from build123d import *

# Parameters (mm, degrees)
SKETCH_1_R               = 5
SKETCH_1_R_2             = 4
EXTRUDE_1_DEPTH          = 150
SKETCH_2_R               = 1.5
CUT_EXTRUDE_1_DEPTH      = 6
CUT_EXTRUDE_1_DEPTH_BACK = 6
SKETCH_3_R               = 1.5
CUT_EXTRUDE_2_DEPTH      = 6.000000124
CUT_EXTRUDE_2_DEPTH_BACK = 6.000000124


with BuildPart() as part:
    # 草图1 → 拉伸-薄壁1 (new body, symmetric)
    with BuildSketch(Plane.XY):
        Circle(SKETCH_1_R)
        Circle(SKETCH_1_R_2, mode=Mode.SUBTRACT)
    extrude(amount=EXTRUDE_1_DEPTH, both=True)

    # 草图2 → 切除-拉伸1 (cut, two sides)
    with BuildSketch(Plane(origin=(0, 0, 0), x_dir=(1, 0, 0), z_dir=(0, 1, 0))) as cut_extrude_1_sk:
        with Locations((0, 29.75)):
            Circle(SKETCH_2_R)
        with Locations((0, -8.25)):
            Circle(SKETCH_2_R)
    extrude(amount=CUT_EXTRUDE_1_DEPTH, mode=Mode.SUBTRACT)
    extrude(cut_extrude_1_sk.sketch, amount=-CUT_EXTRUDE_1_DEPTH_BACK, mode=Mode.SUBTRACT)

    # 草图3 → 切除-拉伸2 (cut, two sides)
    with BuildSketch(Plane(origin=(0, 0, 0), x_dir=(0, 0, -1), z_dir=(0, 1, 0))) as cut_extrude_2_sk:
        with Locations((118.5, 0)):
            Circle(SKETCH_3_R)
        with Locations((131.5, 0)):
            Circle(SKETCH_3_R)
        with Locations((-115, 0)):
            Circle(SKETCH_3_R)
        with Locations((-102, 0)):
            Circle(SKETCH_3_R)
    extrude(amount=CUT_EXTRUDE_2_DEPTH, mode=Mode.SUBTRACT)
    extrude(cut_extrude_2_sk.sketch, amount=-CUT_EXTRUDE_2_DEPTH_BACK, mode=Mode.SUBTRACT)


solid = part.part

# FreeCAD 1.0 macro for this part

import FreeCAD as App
import Part
import Sketcher

V = App.Vector
Q = App.Units.Quantity

doc = App.newDocument("Part")
body = doc.addObject("PartDesign::Body", "Body")

# Sketch on XY plane
sketch1 = body.newObject("Sketcher::SketchObject", "Sketch")
sketch1.AttachmentSupport = (doc.getObject("XY_Plane"), [""])
sketch1.MapMode = "FlatFace"
sketch1.addGeometry([
    Part.Circle(V(0, 0, 0), V(0, 0, 1), 5),
    Part.Circle(V(0, 0, 0), V(0, 0, 1), 4),
], False)
sketch1.addConstraint([
    Sketcher.Constraint("Coincident", 0, 3, -1, 1),
    Sketcher.Constraint("Coincident", 1, 3, -1, 1),
    Sketcher.Constraint("Diameter", 0, Q("10 mm")),
    Sketcher.Constraint("Diameter", 1, Q("8 mm")),
])
pad1 = body.newObject("PartDesign::Pad", "Pad")
pad1.Profile = sketch1
pad1.Length = 300
pad1.Midplane = True

# Sketch on XZ plane
sketch2 = body.newObject("Sketcher::SketchObject", "Sketch001")
sketch2.AttachmentSupport = (doc.getObject("XZ_Plane"), [""])
sketch2.MapMode = "FlatFace"
sketch2.addGeometry([
    Part.Circle(V(0, -29.8, 0), V(0, 0, 1), 1.5),
    Part.Circle(V(0, 8.2, 0), V(0, 0, 1), 1.5),
], False)
sketch2.addConstraint([
    Sketcher.Constraint("Equal", 0, 1),
    Sketcher.Constraint("PointOnObject", 0, 3, -2),
    Sketcher.Constraint("PointOnObject", 1, 3, -2),
    Sketcher.Constraint("Diameter", 0, Q("3 mm")),
    Sketcher.Constraint("DistanceY", 0, 3, 1, 3, Q("38 mm")),
    Sketcher.Constraint("DistanceY", 0, 3, -1, 1, Q("29.75 mm")),
])
pocket1 = body.newObject("PartDesign::Pocket", "Pocket")
pocket1.Profile = sketch2
pocket1.Type = "ThroughAll"
pocket1.Midplane = True

# Sketch on XZ plane
sketch3 = body.newObject("Sketcher::SketchObject", "Sketch002")
sketch3.AttachmentSupport = (doc.getObject("XZ_Plane"), [""])
sketch3.MapMode = "FlatFace"
sketch3.addGeometry([
    Part.Circle(V(0, -118.5, 0), V(0, 0, 1), 1.5),
    Part.Circle(V(0, -131.5, 0), V(0, 0, 1), 1.5),
    Part.Circle(V(0, 115, 0), V(0, 0, 1), 1.5),
    Part.Circle(V(0, 102, 0), V(0, 0, 1), 1.5),
], False)
sketch3.addConstraint([
    Sketcher.Constraint("Equal", 0, 1),
    Sketcher.Constraint("Equal", 1, 2),
    Sketcher.Constraint("Equal", 2, 3),
    Sketcher.Constraint("PointOnObject", 0, 3, -2),
    Sketcher.Constraint("PointOnObject", 1, 3, -2),
    Sketcher.Constraint("PointOnObject", 2, 3, -2),
    Sketcher.Constraint("PointOnObject", 3, 3, -2),
    Sketcher.Constraint("Diameter", 0, Q("3 mm")),
    Sketcher.Constraint("DistanceY", -1, 1, 2, 3, Q("115 mm")),
    Sketcher.Constraint("DistanceY", -1, 1, 3, 3, Q("102 mm")),
    Sketcher.Constraint("DistanceY", 1, 3, 0, 3, Q("13 mm")),
    Sketcher.Constraint("DistanceY", 0, 3, -1, 1, Q("118.5 mm")),
])
pocket2 = body.newObject("PartDesign::Pocket", "Pocket001")
pocket2.Profile = sketch3
pocket2.Type = "ThroughAll"
pocket2.Midplane = True

doc.recompute()
